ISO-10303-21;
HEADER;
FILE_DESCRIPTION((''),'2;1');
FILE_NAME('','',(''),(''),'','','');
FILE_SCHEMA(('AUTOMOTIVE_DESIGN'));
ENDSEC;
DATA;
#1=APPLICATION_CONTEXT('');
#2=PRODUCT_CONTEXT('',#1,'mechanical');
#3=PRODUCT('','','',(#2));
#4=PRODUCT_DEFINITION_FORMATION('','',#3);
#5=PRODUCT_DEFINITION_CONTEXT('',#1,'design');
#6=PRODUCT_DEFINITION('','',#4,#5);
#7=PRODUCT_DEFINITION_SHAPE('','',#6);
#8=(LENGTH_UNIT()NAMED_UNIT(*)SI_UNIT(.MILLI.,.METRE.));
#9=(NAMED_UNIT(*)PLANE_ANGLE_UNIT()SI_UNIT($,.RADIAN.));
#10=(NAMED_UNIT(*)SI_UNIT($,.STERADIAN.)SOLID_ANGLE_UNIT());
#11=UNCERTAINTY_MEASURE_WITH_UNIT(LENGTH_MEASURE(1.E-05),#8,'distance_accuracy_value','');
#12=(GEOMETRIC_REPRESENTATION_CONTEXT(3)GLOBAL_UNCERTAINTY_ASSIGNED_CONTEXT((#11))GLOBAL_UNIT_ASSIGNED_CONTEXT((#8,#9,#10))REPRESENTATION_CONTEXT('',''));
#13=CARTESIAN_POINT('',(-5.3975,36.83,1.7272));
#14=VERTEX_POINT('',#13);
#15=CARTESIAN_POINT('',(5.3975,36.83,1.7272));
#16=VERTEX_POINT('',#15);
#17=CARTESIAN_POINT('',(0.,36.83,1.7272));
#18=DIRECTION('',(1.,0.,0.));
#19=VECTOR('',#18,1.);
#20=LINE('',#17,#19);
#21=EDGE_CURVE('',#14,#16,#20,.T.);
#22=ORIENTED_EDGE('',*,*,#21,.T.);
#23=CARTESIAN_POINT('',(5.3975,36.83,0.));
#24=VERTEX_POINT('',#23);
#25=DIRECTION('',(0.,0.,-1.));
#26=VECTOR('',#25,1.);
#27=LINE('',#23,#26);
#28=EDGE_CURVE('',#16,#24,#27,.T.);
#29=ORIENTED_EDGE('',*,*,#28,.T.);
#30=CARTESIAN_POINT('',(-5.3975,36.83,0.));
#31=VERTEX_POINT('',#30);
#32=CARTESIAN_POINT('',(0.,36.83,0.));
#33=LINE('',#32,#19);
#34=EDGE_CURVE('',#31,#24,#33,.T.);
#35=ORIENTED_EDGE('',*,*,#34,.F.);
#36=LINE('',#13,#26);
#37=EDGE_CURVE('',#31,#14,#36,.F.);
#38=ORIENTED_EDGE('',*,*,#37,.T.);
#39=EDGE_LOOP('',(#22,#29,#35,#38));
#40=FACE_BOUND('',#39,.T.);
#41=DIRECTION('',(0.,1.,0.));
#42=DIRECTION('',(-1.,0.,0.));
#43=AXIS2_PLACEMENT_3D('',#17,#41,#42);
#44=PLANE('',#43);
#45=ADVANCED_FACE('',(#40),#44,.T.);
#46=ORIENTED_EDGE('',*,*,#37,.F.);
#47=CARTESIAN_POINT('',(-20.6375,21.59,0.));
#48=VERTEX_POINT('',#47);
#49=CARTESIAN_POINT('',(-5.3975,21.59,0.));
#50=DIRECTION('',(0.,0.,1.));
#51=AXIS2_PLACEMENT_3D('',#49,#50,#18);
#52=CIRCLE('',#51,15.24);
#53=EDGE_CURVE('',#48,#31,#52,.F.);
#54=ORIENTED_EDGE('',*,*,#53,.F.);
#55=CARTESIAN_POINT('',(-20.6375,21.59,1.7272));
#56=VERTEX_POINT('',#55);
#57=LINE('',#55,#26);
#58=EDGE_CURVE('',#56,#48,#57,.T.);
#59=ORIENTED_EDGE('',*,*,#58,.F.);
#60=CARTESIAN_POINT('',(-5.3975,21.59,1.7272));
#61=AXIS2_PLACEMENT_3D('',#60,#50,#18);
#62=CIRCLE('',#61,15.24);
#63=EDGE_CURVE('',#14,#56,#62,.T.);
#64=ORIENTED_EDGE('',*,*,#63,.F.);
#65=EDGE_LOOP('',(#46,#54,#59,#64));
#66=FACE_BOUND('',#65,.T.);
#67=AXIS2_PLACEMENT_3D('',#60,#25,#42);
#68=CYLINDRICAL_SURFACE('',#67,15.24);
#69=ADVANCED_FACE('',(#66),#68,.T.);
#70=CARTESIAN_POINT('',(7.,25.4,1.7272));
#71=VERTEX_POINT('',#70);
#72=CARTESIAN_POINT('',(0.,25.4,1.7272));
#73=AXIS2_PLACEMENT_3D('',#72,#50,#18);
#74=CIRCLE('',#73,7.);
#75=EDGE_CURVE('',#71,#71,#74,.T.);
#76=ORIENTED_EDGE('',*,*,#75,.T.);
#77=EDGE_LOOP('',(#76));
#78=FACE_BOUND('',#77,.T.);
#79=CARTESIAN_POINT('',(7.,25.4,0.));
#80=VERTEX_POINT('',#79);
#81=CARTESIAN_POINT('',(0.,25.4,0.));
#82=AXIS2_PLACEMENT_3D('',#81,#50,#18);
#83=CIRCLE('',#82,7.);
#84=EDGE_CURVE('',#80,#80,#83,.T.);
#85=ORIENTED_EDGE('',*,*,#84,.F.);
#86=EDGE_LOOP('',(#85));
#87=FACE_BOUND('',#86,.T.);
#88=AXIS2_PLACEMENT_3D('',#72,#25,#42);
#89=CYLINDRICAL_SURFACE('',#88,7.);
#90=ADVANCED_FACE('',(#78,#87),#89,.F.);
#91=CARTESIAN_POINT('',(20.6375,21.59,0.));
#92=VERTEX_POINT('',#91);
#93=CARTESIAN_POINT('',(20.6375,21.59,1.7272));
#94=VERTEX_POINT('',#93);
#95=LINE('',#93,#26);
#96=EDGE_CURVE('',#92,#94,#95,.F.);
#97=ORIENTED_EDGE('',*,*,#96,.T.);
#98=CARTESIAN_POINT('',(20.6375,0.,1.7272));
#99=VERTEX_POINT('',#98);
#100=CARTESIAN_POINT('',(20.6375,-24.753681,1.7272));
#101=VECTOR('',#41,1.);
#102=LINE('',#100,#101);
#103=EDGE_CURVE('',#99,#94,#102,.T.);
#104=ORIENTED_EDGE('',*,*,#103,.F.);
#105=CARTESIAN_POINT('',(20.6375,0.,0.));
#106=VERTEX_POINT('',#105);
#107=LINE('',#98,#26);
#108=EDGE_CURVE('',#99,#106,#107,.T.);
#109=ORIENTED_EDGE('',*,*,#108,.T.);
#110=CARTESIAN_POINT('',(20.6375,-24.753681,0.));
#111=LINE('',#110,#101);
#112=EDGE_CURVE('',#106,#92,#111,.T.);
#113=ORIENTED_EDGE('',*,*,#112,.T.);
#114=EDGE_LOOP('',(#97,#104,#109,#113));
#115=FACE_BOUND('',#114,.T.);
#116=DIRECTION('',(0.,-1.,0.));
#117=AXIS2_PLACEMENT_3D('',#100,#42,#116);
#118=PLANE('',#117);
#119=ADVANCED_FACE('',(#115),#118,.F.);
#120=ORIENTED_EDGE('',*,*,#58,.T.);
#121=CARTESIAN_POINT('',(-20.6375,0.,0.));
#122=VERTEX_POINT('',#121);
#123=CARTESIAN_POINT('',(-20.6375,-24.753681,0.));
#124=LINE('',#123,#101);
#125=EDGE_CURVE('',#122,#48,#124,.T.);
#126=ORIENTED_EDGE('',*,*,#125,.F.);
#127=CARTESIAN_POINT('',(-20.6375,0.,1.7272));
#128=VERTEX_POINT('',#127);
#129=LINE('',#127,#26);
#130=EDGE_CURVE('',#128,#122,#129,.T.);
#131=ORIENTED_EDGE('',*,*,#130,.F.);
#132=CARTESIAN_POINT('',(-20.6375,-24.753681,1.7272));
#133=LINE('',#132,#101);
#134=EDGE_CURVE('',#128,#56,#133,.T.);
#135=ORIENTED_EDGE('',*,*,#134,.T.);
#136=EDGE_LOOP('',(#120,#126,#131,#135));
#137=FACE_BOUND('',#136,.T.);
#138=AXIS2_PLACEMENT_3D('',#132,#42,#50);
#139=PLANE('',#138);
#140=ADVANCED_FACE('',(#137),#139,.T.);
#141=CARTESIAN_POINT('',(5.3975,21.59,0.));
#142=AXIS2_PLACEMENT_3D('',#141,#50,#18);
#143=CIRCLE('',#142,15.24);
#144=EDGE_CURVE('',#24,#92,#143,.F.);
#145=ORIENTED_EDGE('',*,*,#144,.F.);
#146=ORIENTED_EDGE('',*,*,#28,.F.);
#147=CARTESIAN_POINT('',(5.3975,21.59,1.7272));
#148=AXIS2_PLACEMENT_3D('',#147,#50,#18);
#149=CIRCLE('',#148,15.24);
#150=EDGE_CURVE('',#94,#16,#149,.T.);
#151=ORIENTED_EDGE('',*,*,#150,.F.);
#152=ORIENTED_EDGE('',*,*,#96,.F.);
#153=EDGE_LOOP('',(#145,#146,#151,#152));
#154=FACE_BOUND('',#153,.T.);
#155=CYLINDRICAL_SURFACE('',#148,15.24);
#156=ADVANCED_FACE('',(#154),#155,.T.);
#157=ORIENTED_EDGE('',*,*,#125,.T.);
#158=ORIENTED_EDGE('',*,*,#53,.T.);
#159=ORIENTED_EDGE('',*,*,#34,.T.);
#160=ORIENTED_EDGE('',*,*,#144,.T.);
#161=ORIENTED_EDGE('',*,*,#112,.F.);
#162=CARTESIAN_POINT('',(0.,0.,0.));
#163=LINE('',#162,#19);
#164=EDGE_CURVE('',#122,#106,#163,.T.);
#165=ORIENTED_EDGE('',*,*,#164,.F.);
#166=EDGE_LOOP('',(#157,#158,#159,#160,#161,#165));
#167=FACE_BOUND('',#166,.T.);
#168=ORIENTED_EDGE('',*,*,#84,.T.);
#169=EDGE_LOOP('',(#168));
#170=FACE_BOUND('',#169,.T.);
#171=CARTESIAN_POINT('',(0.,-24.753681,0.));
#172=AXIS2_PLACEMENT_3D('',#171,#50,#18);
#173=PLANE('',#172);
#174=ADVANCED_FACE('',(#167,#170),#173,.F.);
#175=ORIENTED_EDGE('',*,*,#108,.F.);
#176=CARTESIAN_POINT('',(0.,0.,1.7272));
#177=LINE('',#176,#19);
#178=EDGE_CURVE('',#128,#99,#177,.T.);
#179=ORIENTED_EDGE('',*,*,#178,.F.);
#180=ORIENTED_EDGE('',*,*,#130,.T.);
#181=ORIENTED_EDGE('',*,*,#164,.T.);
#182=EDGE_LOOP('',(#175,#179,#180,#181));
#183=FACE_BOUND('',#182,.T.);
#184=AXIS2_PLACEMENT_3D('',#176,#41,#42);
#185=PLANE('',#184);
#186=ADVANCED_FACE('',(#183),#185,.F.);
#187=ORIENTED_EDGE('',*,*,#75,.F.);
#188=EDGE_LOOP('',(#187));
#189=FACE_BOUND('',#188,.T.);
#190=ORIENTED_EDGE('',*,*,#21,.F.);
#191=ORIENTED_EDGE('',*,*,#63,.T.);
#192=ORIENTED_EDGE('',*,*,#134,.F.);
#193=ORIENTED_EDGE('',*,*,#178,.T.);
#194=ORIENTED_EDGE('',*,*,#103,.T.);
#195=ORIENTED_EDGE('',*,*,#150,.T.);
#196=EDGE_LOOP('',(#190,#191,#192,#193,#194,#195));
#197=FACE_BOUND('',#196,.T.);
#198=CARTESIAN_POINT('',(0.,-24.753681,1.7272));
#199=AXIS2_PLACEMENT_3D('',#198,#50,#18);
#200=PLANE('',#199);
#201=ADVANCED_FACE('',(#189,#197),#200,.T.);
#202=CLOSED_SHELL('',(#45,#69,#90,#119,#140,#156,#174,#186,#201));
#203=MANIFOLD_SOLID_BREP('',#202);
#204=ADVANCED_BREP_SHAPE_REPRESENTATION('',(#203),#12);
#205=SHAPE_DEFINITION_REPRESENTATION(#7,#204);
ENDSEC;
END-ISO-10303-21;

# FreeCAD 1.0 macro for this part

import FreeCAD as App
import Part
import Sketcher
Q = App.Units.Quantity


def edges_at(feature, points):
    """Names of the edges that pass closest to the given points."""
    edges = feature.Shape.Edges
    near = lambda p: min(range(len(edges)), key=lambda i: edges[i].distToShape(Part.Vertex(*p))[0])
    return sorted({f"Edge{near(p) + 1}" for p in points})

doc = App.newDocument("Part")
body = doc.addObject("PartDesign::Body", "Body")

# Sketch on XY plane
sketch1 = body.newObject("Sketcher::SketchObject", "Sketch")
sketch1.AttachmentSupport = (doc.getObject("XY_Plane"), [""])
sketch1.MapMode = "FlatFace"
sketch1.addGeometry(Part.LineSegment(App.Vector(-20.6375, 36.83, 0), App.Vector(-20.6375, 0, 0)), False)
sketch1.addGeometry(Part.LineSegment(App.Vector(-20.6375, 0, 0), App.Vector(20.6375, 0, 0)), False)
sketch1.addGeometry(Part.LineSegment(App.Vector(20.6375, 0, 0), App.Vector(20.6375, 36.83, 0)), False)
sketch1.addGeometry(Part.LineSegment(App.Vector(20.6375, 36.83, 0), App.Vector(-20.6375, 36.83, 0)), False)
sketch1.addGeometry(Part.Circle(App.Vector(0, 25.4, 0), App.Vector(0, 0, 1), 7), False)
sketch1.addConstraint(Sketcher.Constraint("Coincident", 0, 2, 1, 1))
sketch1.addConstraint(Sketcher.Constraint("Coincident", 1, 2, 2, 1))
sketch1.addConstraint(Sketcher.Constraint("Coincident", 2, 2, 3, 1))
sketch1.addConstraint(Sketcher.Constraint("Coincident", 3, 2, 0, 1))
sketch1.addConstraint(Sketcher.Constraint("Vertical", 0))
sketch1.addConstraint(Sketcher.Constraint("Horizontal", 1))
sketch1.addConstraint(Sketcher.Constraint("Vertical", 2))
sketch1.addConstraint(Sketcher.Constraint("Horizontal", 3))
sketch1.addConstraint(Sketcher.Constraint("Symmetric", 0, 2, 1, 2, -1, 1))
sketch1.addConstraint(Sketcher.Constraint("PointOnObject", 4, 3, -2))
sketch1.addConstraint(Sketcher.Constraint("DistanceY", -1, 1, 4, 3, Q("1 in")))
sketch1.addConstraint(Sketcher.Constraint("DistanceY", 0, 2, 0, 1, Q("1.45 in")))
sketch1.addConstraint(Sketcher.Constraint("Diameter", 4, Q("14 mm")))
sketch1.addConstraint(Sketcher.Constraint("DistanceX", 1, 1, 1, 2, Q("1.625 in")))
pad1 = body.newObject("PartDesign::Pad", "Pad")
pad1.Profile = sketch1
pad1.Length = Q("0.068 in")
doc.recompute()

fillet = body.newObject("PartDesign::Fillet", "Fillet")
fillet.Base = (pad1, edges_at(pad1, [(20.637, 36.83, 0.864), (-20.637, 36.83, 0.864)]))
fillet.Radius = Q("0.6 in")

doc.recompute()
